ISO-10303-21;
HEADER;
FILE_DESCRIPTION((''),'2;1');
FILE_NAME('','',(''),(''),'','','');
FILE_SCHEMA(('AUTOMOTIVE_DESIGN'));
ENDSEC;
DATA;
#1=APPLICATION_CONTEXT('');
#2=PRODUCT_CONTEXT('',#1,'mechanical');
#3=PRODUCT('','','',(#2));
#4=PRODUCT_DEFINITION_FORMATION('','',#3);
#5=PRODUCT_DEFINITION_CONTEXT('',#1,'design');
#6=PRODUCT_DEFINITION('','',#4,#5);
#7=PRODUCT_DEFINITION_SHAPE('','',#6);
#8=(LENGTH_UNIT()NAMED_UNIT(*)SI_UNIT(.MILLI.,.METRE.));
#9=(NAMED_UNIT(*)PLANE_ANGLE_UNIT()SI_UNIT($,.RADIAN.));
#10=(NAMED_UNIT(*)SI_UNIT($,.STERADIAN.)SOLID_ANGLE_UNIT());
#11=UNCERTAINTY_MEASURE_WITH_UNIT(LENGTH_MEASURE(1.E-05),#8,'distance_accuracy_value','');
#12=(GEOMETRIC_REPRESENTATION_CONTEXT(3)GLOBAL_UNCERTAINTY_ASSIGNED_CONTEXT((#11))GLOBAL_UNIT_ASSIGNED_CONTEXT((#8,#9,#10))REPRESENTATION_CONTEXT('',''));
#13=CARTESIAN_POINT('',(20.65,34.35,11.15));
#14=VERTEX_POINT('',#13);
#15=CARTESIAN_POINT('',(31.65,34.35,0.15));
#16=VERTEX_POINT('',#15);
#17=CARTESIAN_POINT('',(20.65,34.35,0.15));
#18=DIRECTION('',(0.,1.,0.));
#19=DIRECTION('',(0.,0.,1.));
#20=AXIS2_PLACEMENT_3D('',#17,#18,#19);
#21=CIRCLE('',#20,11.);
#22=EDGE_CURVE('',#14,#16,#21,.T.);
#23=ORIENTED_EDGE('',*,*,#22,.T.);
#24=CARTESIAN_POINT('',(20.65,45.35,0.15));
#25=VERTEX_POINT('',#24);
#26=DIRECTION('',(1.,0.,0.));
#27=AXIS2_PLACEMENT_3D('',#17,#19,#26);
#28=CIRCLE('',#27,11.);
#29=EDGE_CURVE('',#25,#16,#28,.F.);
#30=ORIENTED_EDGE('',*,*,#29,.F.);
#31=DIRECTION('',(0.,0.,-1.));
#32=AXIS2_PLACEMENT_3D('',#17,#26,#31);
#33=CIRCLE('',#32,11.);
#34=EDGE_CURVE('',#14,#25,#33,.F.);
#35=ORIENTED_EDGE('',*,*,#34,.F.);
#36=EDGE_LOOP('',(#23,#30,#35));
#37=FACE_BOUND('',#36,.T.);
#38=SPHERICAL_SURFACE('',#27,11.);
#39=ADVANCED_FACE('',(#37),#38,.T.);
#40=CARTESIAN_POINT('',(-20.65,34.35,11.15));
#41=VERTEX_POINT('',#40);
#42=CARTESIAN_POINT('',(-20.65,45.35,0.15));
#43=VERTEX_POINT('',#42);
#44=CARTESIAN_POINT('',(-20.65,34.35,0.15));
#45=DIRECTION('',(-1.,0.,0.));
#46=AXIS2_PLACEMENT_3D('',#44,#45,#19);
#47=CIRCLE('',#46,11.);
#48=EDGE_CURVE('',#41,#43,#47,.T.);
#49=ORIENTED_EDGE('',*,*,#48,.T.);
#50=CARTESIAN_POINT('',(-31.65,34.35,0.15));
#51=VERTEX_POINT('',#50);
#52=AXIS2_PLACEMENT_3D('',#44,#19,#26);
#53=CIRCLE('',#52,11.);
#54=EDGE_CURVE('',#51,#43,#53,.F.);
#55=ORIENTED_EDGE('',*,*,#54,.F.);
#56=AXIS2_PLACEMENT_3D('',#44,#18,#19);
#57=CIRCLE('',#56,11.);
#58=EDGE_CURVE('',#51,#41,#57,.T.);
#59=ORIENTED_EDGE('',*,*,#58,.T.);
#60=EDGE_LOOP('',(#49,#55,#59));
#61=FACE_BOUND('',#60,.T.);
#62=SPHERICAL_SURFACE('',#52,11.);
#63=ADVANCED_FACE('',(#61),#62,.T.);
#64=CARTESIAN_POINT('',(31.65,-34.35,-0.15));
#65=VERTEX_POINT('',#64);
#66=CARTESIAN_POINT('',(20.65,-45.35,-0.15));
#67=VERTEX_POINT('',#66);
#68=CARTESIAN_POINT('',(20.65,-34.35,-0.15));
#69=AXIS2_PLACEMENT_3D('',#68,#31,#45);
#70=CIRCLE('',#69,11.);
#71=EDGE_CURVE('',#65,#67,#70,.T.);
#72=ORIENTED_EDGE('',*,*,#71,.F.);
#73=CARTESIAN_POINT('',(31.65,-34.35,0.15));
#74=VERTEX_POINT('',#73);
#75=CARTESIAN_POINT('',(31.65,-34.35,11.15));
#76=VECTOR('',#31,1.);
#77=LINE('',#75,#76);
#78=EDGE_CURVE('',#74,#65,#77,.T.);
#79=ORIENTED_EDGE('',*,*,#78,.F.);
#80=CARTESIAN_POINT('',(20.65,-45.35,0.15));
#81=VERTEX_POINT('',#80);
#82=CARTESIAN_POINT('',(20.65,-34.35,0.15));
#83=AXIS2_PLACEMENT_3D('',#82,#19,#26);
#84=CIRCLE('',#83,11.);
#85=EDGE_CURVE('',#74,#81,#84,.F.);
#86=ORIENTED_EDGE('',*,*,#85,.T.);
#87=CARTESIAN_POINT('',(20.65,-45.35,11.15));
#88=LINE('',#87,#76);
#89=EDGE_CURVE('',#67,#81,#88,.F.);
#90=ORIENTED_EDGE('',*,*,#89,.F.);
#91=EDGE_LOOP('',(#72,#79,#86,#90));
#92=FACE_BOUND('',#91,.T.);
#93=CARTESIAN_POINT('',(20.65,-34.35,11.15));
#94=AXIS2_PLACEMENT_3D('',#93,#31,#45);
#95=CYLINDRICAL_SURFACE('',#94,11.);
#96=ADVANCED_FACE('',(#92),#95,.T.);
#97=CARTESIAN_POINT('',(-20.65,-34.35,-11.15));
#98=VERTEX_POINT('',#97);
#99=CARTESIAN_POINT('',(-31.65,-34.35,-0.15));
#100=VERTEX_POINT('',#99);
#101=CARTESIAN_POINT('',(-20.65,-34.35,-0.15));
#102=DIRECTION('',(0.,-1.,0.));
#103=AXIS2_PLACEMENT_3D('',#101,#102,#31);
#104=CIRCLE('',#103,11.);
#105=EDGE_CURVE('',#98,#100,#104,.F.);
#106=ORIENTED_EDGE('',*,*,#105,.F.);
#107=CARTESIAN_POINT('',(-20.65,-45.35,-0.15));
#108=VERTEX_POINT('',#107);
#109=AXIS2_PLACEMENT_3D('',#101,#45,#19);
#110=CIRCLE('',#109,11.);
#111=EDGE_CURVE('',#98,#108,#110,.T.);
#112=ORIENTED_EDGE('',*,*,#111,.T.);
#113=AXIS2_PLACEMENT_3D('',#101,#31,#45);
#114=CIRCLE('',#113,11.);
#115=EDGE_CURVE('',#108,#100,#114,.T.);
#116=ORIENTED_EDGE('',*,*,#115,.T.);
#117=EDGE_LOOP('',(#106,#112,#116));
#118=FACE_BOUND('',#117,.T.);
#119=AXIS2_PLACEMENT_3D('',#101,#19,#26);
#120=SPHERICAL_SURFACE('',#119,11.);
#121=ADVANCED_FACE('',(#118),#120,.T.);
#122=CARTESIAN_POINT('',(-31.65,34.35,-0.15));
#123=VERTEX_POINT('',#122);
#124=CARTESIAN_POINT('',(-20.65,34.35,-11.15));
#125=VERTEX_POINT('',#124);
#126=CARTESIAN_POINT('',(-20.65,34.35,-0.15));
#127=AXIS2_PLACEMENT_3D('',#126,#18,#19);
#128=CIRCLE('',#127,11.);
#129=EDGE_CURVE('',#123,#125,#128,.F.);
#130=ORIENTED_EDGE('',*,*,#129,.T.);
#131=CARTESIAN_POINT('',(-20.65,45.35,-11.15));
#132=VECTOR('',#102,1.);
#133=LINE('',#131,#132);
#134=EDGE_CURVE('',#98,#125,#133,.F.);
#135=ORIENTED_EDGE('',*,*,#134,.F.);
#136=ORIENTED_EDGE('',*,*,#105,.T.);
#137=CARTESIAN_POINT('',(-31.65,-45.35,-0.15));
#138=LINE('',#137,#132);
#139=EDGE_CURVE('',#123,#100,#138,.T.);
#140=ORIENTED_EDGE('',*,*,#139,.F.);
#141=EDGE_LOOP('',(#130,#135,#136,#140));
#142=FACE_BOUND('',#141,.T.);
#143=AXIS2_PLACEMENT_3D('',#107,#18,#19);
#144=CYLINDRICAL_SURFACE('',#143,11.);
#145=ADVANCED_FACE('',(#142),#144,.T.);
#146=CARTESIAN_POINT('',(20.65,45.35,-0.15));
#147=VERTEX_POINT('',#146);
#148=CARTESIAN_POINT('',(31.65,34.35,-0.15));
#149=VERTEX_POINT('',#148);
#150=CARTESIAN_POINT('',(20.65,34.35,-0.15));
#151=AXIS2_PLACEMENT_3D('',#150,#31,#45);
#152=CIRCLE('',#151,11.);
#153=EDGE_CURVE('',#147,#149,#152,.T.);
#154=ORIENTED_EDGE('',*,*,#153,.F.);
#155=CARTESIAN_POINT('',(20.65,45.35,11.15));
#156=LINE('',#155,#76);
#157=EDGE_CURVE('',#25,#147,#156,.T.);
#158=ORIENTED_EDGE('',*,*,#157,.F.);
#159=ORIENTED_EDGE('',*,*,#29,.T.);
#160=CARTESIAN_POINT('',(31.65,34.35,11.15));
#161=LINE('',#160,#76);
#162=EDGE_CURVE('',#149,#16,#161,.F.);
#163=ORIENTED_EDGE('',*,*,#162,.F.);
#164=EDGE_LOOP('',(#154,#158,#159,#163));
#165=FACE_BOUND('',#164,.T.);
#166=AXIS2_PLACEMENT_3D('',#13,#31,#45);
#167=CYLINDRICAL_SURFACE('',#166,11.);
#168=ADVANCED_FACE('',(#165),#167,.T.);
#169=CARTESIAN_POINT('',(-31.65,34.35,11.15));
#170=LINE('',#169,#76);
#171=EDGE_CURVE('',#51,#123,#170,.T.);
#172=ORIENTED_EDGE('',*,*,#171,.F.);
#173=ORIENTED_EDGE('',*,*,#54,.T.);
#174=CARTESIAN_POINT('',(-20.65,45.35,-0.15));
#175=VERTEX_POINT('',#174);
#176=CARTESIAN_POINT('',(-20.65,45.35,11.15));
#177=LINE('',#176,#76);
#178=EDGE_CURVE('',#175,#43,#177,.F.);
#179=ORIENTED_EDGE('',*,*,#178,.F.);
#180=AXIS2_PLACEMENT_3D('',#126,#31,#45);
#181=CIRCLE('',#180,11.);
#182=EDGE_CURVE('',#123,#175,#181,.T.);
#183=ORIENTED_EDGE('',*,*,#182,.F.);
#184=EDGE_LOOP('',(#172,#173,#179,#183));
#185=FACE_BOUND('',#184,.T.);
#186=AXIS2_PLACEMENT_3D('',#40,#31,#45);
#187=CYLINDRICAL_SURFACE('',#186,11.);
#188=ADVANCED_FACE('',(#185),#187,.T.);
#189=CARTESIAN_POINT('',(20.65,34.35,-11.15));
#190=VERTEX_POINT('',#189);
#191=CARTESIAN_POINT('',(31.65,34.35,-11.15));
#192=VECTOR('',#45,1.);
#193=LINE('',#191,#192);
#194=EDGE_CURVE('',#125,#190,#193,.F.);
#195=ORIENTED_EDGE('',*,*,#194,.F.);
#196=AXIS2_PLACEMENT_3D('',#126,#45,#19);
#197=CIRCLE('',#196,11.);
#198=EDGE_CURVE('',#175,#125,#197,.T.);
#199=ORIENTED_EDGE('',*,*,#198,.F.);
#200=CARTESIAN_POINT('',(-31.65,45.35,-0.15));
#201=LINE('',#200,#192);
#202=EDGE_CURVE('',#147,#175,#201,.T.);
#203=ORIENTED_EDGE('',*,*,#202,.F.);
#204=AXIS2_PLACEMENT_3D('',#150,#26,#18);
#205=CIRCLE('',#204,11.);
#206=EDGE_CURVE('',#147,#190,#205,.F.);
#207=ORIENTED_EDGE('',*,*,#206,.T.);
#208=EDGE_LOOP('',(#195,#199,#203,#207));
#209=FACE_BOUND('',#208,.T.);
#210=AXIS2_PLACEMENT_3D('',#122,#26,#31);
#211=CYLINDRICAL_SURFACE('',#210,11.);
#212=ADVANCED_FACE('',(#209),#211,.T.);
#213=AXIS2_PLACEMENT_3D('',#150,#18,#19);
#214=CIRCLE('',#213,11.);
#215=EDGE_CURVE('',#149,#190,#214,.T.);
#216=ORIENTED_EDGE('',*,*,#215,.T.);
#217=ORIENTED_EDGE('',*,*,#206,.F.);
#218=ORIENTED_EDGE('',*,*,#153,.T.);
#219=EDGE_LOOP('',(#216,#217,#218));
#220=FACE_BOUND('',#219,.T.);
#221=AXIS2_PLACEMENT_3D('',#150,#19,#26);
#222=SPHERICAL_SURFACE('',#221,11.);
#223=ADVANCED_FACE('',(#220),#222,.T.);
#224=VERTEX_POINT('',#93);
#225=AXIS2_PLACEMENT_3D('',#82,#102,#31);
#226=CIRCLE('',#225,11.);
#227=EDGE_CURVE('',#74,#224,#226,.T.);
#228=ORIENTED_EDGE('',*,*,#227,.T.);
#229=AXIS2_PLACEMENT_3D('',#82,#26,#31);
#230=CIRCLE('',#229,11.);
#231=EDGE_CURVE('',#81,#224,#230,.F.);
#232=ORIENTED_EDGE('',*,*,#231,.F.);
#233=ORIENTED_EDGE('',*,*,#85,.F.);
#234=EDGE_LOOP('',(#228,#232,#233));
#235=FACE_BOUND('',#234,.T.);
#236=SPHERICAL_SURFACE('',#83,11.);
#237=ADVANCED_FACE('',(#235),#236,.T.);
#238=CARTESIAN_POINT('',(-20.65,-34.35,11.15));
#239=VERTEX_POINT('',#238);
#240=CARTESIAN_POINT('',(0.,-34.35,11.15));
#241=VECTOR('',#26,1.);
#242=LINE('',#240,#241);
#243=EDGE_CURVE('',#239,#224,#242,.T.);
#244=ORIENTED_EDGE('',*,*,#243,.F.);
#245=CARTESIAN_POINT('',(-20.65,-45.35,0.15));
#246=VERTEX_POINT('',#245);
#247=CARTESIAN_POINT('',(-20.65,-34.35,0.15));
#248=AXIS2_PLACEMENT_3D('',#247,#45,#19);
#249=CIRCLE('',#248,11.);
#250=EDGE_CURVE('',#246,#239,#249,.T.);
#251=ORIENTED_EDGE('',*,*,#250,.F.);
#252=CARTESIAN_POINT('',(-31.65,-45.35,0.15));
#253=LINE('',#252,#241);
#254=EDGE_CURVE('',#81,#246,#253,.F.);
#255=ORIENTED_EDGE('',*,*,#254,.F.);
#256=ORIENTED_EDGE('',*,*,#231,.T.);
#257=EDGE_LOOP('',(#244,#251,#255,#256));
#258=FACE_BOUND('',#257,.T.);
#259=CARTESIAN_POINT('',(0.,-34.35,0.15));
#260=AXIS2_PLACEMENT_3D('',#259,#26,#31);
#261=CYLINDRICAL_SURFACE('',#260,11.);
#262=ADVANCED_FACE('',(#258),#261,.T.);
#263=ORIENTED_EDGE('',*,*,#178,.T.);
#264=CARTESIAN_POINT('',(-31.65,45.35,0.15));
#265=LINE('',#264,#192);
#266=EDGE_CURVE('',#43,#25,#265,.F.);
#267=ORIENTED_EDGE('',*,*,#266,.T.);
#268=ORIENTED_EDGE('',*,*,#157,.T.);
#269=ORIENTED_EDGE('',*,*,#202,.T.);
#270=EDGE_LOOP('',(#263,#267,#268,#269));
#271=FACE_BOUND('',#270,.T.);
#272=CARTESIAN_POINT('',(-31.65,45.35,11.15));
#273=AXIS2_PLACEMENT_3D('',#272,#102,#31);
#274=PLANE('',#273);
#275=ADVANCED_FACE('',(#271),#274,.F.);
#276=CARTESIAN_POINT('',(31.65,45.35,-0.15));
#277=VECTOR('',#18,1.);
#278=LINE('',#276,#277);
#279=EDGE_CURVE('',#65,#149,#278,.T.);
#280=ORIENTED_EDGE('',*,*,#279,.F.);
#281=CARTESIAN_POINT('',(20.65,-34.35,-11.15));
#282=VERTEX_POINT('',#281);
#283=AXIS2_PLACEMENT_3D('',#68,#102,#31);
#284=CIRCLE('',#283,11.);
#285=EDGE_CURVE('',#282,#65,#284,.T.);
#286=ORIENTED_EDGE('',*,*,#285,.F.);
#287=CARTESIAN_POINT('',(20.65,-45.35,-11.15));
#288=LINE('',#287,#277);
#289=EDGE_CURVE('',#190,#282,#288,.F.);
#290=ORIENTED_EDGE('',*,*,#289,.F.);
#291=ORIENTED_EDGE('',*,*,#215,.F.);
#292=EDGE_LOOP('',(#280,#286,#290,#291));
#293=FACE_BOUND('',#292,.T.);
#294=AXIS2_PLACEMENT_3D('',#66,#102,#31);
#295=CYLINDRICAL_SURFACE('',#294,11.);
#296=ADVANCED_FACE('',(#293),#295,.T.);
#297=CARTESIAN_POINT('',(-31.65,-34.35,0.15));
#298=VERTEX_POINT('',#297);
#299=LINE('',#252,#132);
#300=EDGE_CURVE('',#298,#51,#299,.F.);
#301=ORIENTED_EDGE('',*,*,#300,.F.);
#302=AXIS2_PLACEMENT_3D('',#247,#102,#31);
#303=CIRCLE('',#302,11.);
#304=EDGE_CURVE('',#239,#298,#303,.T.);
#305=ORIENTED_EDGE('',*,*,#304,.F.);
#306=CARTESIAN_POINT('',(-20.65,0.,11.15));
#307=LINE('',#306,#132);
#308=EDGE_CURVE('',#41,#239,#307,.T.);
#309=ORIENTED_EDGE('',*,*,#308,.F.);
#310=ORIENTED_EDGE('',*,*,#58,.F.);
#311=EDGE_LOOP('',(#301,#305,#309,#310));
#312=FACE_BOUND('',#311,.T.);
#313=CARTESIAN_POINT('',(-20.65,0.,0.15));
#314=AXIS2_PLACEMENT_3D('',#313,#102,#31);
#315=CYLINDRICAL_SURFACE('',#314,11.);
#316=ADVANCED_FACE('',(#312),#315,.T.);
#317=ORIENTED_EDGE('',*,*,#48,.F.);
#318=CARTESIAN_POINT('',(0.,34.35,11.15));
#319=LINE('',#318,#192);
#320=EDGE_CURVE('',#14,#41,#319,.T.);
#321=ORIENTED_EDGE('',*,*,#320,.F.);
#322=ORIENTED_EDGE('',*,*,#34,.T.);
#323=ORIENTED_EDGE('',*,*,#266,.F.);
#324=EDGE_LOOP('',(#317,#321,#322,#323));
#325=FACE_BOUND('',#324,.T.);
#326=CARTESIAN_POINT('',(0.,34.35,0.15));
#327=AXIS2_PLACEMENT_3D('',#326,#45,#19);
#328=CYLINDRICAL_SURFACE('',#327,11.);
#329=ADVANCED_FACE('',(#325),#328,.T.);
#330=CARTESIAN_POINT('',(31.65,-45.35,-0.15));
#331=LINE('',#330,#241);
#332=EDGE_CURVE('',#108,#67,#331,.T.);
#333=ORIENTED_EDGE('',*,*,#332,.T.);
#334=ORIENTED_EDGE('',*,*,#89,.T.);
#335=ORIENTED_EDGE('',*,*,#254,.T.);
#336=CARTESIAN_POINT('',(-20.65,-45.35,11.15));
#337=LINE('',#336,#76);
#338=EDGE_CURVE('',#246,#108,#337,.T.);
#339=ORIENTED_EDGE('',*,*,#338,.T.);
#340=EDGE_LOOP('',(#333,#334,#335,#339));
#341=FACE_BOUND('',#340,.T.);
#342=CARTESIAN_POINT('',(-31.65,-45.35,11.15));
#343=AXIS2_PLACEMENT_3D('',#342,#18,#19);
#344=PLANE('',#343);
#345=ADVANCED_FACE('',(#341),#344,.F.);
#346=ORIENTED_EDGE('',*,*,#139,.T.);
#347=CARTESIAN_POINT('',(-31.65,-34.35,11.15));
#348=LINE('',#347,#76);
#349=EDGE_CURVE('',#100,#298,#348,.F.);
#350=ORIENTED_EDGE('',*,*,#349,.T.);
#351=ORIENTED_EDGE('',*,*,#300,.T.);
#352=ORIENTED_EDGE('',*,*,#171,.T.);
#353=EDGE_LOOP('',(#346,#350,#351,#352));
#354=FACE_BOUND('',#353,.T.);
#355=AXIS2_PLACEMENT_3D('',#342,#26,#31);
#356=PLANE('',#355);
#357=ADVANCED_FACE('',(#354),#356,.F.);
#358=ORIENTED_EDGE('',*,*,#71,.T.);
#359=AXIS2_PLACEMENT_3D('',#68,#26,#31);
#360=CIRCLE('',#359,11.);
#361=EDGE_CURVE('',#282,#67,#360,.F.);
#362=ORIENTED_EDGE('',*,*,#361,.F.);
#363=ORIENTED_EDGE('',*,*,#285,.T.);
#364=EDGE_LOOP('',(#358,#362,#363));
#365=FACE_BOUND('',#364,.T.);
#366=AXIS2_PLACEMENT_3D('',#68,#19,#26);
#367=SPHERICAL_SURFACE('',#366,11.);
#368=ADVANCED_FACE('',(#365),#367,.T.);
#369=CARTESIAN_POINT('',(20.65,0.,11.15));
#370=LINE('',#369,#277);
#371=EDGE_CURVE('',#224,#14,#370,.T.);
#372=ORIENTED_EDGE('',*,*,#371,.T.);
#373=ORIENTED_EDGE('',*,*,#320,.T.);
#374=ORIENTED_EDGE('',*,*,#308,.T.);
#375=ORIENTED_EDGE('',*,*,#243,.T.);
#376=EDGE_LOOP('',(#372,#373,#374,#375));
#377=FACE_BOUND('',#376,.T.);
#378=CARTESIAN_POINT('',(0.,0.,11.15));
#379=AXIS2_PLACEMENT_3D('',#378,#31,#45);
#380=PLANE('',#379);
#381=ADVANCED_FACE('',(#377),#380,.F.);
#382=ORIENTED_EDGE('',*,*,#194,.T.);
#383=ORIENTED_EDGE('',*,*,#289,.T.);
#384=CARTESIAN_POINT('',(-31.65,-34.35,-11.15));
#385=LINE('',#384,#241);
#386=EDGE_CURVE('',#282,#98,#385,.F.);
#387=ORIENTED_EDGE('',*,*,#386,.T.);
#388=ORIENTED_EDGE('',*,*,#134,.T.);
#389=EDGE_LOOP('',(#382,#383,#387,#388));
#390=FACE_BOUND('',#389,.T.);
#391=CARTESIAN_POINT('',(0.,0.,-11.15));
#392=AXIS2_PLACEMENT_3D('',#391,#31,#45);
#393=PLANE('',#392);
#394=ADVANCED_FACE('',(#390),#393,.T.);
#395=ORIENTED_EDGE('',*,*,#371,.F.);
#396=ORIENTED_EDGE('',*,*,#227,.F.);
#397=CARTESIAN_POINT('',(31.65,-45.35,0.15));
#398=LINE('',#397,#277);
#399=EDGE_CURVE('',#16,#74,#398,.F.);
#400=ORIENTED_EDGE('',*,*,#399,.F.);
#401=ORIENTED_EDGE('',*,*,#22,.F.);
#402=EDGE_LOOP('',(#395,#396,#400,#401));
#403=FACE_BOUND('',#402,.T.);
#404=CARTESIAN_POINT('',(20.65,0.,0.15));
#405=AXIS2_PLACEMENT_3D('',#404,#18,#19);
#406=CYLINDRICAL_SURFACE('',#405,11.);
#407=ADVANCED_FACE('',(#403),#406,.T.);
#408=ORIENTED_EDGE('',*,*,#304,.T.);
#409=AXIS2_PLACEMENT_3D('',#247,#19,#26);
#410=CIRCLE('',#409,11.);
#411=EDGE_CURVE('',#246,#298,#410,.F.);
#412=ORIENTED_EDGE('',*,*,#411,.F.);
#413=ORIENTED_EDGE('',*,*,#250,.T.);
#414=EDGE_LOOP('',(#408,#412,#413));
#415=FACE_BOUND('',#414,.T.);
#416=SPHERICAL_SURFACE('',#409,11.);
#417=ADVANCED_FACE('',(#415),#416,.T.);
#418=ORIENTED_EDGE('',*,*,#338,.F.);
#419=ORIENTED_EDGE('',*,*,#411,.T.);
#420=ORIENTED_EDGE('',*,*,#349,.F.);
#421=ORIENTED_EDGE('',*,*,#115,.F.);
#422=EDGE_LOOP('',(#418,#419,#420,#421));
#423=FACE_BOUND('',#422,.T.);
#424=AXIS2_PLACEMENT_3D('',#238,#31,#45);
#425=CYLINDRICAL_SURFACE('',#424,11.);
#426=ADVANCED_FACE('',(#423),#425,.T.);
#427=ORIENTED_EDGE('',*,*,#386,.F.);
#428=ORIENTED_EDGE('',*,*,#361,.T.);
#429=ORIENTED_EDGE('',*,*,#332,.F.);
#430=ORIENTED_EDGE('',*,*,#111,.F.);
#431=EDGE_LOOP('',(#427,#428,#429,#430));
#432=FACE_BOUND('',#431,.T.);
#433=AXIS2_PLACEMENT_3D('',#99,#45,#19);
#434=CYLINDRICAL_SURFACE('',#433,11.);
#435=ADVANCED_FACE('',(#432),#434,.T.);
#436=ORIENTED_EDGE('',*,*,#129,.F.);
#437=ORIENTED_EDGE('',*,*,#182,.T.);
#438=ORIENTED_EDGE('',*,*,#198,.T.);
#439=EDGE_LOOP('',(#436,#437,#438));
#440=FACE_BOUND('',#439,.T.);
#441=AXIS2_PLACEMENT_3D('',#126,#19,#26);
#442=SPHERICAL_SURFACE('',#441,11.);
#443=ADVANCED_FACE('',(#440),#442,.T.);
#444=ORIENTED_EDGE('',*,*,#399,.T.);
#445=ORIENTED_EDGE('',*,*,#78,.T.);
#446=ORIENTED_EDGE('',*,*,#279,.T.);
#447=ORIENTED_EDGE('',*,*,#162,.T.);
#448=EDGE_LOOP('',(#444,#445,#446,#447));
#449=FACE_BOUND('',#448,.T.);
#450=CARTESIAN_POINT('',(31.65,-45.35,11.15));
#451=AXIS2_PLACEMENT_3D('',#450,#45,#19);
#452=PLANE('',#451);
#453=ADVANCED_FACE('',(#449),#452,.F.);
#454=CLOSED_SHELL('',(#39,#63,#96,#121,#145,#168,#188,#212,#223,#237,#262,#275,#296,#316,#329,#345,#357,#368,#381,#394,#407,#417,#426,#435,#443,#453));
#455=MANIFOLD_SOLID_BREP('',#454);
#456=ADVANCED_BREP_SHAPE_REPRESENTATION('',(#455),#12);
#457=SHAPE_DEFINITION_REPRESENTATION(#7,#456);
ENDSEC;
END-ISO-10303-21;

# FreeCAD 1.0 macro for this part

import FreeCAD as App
import Part
import Sketcher

V = App.Vector
Q = App.Units.Quantity

doc = App.newDocument("Part")
body = doc.addObject("PartDesign::Body", "Body")

# Sketch on XY plane
sketch1 = doc.addObject("Sketcher::SketchObject", "Sketch")
body.addObject(sketch1)
sketch1.AttachmentSupport = (doc.XY_Plane, [""])
sketch1.MapMode = "FlatFace"
sketch1.addGeometry(Part.LineSegment(V(-31.65, 45.35, 0), V(-31.65, -45.35, 0)), False)
sketch1.addGeometry(Part.LineSegment(V(-31.65, -45.35, 0), V(31.65, -45.35, 0)), False)
sketch1.addGeometry(Part.LineSegment(V(31.65, -45.35, 0), V(31.65, 45.35, 0)), False)
sketch1.addGeometry(Part.LineSegment(V(31.65, 45.35, 0), V(-31.65, 45.35, 0)), False)
sketch1.addConstraint(Sketcher.Constraint("Coincident", 0, 2, 1, 1))
sketch1.addConstraint(Sketcher.Constraint("Coincident", 1, 2, 2, 1))
sketch1.addConstraint(Sketcher.Constraint("Coincident", 2, 2, 3, 1))
sketch1.addConstraint(Sketcher.Constraint("Coincident", 3, 2, 0, 1))
sketch1.addConstraint(Sketcher.Constraint("Vertical", 0))
sketch1.addConstraint(Sketcher.Constraint("Horizontal", 1))
sketch1.addConstraint(Sketcher.Constraint("Vertical", 2))
sketch1.addConstraint(Sketcher.Constraint("Horizontal", 3))
sketch1.addConstraint(Sketcher.Constraint("Symmetric", 0, 2, 2, 2, -1, 1))
sketch1.addConstraint(Sketcher.Constraint("DistanceX", 1, 1, 1, 2, Q("63.3 mm")))
sketch1.addConstraint(Sketcher.Constraint("DistanceY", 0, 2, 0, 1, Q("90.7 mm")))
pad1 = doc.addObject("PartDesign::Pad", "Pad")
body.addObject(pad1)
pad1.Profile = sketch1
pad1.Length = 22.3
pad1.Midplane = True
doc.recompute()

fillet = doc.addObject("PartDesign::Fillet", "Fillet")
body.addObject(fillet)
fillet.Base = (pad1, ["Edge1"])
fillet.UseAllEdges = True
fillet.Radius = 11

doc.recompute()
